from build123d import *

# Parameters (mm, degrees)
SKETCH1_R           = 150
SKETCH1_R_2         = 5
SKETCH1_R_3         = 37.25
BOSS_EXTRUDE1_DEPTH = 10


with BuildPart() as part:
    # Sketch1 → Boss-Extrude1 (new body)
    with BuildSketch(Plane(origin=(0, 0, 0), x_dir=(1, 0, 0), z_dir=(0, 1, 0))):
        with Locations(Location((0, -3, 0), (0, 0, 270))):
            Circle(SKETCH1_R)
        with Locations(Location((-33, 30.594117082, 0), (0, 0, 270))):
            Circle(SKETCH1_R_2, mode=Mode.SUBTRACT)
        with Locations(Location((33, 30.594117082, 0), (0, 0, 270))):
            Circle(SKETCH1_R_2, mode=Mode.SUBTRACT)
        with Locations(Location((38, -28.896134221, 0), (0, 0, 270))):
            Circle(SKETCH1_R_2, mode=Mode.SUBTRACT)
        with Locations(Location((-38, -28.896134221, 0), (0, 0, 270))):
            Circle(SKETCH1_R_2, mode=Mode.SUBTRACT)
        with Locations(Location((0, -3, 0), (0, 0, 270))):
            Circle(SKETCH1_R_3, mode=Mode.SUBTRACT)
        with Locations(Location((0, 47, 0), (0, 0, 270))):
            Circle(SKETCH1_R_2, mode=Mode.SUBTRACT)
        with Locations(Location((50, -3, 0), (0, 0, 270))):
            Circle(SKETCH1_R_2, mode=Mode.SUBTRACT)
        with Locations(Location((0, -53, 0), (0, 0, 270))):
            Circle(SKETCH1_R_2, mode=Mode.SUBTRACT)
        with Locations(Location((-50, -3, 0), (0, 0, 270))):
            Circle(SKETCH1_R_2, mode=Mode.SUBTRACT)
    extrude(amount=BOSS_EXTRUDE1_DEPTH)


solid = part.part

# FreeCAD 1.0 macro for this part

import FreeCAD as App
import Part
import Sketcher

V = App.Vector

doc = App.newDocument("Part")
params = doc.addObject("Spreadsheet::Sheet", "Params")
for row, (alias, value) in enumerate([
    ("sketch1_diameter", "300 mm"),
    ("sketch1_diameter2", "10 mm"),
    ("sketch1_diameter3", "74.5 mm"),
    ("pad1_length", "10 mm"),
], start=1):
    params.set(f"A{row}", alias)
    params.set(f"B{row}", "=" + value)
    params.setAlias(f"B{row}", alias)

body = doc.addObject("PartDesign::Body", "Body")

# Sketch on XZ plane
sketch1 = body.newObject("Sketcher::SketchObject", "Sketch")
sketch1.AttachmentSupport = (doc.getObject("XZ_Plane"), [""])
sketch1.MapMode = "FlatFace"
sketch1.addGeometry(Part.Circle(V(0, 3, 0), V(0, 0, 1), 150), False)
sketch1.addGeometry(Part.Circle(V(-33, -31, 0), V(0, 0, 1), 5), False)
sketch1.addGeometry(Part.Circle(V(0, -47, 0), V(0, 0, 1), 5), False)
sketch1.addGeometry(Part.Circle(V(-50, 3, 0), V(0, 0, 1), 5), False)
sketch1.addGeometry(Part.Circle(V(-38, 29, 0), V(0, 0, 1), 5), False)
sketch1.addGeometry(Part.Circle(V(33, -31, 0), V(0, 0, 1), 5), False)
sketch1.addGeometry(Part.Circle(V(50, 3, 0), V(0, 0, 1), 5), False)
sketch1.addGeometry(Part.Circle(V(0, 3, 0), V(0, 0, 1), 37), False)
sketch1.addGeometry(Part.Circle(V(0, 53, 0), V(0, 0, 1), 5), False)
sketch1.addGeometry(Part.Circle(V(38, 29, 0), V(0, 0, 1), 5), False)
sketch1.addConstraint(Sketcher.Constraint("Coincident", 7, 3, 0, 3))
sketch1.addConstraint(Sketcher.Constraint("Equal", 1, 2))
sketch1.addConstraint(Sketcher.Constraint("Equal", 2, 3))
sketch1.addConstraint(Sketcher.Constraint("Equal", 3, 4))
sketch1.addConstraint(Sketcher.Constraint("Equal", 4, 5))
sketch1.addConstraint(Sketcher.Constraint("Equal", 5, 6))
sketch1.addConstraint(Sketcher.Constraint("Equal", 6, 8))
sketch1.addConstraint(Sketcher.Constraint("Equal", 8, 9))
sketch1.addConstraint(Sketcher.Constraint("Symmetric", 1, 3, 5, 3, -2))
sketch1.addConstraint(Sketcher.Constraint("Symmetric", 3, 3, 6, 3, -2))
sketch1.addConstraint(Sketcher.Constraint("Symmetric", 4, 3, 9, 3, -2))
sketch1.addConstraint(Sketcher.Constraint("PointOnObject", 0, 3, -2))
sketch1.addConstraint(Sketcher.Constraint("PointOnObject", 2, 3, -2))
sketch1.addConstraint(Sketcher.Constraint("PointOnObject", 8, 3, -2))
sketch1.addConstraint(Sketcher.Constraint("Horizontal", 0, 3, 3, 3))
sketch1.addConstraint(Sketcher.Constraint("Diameter", 0, 300.0))
sketch1.addConstraint(Sketcher.Constraint("Diameter", 1, 10.0))
sketch1.addConstraint(Sketcher.Constraint("Diameter", 7, 74.5))
sketch1.addConstraint(Sketcher.Constraint("DistanceY", -1, 1, 0, 3, 3.0))
sketch1.addConstraint(Sketcher.Constraint("DistanceX", 1, 3, -1, 1, 33.0))
sketch1.addConstraint(Sketcher.Constraint("DistanceY", 2, 3, -1, 1, 47.0))
sketch1.addConstraint(Sketcher.Constraint("DistanceX", 3, 3, -1, 1, 50.0))
sketch1.addConstraint(Sketcher.Constraint("DistanceX", 4, 3, -1, 1, 38.0))
sketch1.addConstraint(Sketcher.Constraint("DistanceY", -1, 1, 8, 3, 53.0))
sketch1.addConstraint(Sketcher.Constraint("DistanceY", 1, 3, 4, 3, 59.490251))
sketch1.addConstraint(Sketcher.Constraint("DistanceY", 1, 3, -1, 1, 30.594117))
sketch1.setExpression("Constraints[15]", "Params.sketch1_diameter")
sketch1.setExpression("Constraints[16]", "Params.sketch1_diameter2")
sketch1.setExpression("Constraints[17]", "Params.sketch1_diameter3")
pad1 = body.newObject("PartDesign::Pad", "Pad")
pad1.Profile = sketch1
pad1.setExpression("Length", "Params.pad1_length")
pad1.Reversed = True

doc.recompute()
